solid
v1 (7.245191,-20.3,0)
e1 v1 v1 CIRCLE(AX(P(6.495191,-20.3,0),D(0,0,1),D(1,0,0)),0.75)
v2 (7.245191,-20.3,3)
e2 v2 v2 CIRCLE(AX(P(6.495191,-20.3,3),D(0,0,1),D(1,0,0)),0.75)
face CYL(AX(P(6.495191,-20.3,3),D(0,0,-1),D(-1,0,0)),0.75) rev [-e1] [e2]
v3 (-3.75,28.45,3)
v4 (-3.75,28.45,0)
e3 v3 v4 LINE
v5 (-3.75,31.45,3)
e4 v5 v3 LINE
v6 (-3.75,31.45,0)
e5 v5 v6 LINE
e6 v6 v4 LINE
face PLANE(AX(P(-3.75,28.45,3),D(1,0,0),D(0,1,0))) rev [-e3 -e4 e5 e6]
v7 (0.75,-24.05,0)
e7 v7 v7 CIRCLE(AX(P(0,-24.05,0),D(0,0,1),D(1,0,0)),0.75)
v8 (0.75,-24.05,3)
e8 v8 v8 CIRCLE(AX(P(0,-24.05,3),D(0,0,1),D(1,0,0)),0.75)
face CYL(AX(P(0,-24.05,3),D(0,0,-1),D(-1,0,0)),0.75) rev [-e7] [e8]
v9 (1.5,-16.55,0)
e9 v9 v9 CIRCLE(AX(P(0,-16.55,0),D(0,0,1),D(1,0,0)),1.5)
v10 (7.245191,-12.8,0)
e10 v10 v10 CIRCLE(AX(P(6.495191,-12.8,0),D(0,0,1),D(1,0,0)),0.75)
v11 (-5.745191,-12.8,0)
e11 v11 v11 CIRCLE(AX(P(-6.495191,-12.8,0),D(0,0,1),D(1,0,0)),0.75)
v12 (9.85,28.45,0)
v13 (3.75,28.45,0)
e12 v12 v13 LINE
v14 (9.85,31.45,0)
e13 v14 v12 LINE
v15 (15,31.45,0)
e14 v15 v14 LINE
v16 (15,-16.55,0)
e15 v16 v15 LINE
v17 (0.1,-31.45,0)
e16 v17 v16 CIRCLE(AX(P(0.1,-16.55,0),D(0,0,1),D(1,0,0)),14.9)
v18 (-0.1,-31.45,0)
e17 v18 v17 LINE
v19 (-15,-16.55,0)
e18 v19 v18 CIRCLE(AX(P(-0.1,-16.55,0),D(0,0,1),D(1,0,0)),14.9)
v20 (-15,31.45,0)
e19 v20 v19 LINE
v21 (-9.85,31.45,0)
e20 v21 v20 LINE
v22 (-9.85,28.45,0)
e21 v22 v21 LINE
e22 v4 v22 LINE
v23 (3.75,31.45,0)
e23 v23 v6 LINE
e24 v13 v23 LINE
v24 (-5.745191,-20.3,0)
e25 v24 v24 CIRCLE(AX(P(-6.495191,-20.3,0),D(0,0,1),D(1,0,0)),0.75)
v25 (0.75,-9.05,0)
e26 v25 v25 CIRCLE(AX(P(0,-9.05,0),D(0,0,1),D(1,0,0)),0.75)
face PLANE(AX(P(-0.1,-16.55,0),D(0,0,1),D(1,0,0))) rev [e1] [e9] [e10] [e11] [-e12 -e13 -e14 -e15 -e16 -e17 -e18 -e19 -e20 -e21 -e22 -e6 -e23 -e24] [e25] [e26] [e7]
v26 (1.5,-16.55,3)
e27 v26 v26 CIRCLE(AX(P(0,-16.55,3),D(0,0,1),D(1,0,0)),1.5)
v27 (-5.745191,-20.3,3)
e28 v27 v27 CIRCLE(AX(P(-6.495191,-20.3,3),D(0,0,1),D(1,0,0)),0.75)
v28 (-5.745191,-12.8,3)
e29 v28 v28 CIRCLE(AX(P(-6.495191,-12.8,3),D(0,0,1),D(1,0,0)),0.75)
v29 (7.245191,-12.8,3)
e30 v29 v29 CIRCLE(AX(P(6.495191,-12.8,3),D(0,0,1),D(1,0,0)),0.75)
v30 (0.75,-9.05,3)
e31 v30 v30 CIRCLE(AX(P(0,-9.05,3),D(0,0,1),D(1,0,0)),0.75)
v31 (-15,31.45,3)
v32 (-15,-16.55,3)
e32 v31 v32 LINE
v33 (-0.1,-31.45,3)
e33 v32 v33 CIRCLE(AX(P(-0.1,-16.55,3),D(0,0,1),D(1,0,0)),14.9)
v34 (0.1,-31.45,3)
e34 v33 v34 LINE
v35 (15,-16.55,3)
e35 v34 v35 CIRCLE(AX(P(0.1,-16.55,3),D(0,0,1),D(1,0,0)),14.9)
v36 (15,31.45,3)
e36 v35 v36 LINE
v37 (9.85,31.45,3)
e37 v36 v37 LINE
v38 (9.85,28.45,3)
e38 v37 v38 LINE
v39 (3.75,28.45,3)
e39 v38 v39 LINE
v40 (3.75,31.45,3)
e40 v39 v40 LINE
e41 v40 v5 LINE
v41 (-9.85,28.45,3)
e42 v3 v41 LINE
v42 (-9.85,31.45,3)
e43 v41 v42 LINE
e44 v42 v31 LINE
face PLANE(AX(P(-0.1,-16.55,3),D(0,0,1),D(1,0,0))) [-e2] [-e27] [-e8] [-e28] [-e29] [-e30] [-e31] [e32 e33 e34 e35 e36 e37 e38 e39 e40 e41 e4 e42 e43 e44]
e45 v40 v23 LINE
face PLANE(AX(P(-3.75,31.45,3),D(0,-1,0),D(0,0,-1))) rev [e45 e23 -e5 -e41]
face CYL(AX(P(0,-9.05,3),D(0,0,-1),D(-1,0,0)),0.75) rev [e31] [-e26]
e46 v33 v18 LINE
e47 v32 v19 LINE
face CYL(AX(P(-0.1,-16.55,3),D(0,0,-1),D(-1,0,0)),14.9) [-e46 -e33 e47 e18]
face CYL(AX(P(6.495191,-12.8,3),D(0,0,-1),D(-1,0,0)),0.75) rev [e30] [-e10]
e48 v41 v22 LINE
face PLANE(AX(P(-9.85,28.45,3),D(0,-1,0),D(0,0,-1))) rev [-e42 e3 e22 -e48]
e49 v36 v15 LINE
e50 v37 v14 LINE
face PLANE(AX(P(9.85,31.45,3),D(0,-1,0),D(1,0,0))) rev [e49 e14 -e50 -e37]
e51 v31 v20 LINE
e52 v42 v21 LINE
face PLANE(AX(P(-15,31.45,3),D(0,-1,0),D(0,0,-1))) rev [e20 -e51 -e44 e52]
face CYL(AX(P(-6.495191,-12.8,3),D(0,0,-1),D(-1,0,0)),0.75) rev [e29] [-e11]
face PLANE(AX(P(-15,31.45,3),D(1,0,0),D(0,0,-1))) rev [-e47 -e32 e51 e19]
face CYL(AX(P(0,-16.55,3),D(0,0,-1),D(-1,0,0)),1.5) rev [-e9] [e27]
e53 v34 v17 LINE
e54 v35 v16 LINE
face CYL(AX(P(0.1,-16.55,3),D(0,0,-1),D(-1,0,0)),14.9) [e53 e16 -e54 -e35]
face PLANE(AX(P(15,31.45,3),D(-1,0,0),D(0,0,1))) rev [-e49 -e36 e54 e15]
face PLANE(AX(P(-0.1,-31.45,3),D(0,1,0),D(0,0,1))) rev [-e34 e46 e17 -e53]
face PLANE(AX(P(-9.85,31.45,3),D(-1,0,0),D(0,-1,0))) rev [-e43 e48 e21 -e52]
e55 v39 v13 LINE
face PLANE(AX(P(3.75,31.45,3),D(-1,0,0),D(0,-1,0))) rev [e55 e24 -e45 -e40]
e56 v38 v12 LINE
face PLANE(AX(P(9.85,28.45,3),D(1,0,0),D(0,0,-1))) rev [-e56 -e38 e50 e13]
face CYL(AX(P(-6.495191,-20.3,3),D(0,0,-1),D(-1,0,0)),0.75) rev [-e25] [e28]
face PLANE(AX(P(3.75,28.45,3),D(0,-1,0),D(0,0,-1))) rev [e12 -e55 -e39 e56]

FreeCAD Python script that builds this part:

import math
import FreeCAD as App
import Part
import Sketcher

V = App.Vector
Q = App.Units.Quantity

doc = App.newDocument("Part")
params = doc.addObject("Spreadsheet::Sheet", "Params")
for row, (alias, value) in enumerate([
    ("sketch1_diameter", "3 mm"),
    ("sketch1_diameter2", "1.5 mm"),
    ("sketch1_radius", "14.9 mm"),
    ("sketch1_height", "3 mm"),
    ("sketch1_height2", "48 mm"),
    ("pad1_length", "3 mm"),
], start=1):
    params.set(f"A{row}", alias)
    params.set(f"B{row}", "=" + value)
    params.setAlias(f"B{row}", alias)

body = doc.addObject("PartDesign::Body", "Body")

sketch1 = body.newObject("Sketcher::SketchObject", "Sketch")
sketch1.AttachmentSupport = (doc.getObject("XY_Plane"), [""])
sketch1.MapMode = "FlatFace"
sketch1.addGeometry([
    Part.LineSegment(V(-9.85, 28.45, 0), V(-9.85, 31.45, 0)),
    Part.LineSegment(V(-9.85, 31.45, 0), V(-15, 31.45, 0)),
    Part.LineSegment(V(-15, 31.45, 0), V(-15, -16.55, 0)),
    Part.ArcOfCircle(Part.Circle(V(-0.1, -16.55, 0), V(0, 0, 1), 14.9), math.radians(180), math.radians(270)),
    Part.LineSegment(V(-0.1, -31.45, 0), V(0.1, -31.45, 0)),
    Part.ArcOfCircle(Part.Circle(V(0.1, -16.55, 0), V(0, 0, 1), 14.9), math.radians(-90), math.radians(0)),
    Part.LineSegment(V(15, -16.55, 0), V(15, 31.45, 0)),
    Part.LineSegment(V(15, 31.45, 0), V(9.85, 31.45, 0)),
    Part.LineSegment(V(9.85, 31.45, 0), V(9.85, 28.45, 0)),
    Part.LineSegment(V(9.85, 28.45, 0), V(3.75, 28.45, 0)),
    Part.LineSegment(V(3.75, 28.45, 0), V(3.75, 31.45, 0)),
    Part.LineSegment(V(3.75, 31.45, 0), V(-3.75, 31.45, 0)),
    Part.LineSegment(V(-3.75, 31.45, 0), V(-3.75, 28.45, 0)),
    Part.LineSegment(V(-3.75, 28.45, 0), V(-9.85, 28.45, 0)),
    Part.Circle(V(6.5, -20.3, 0), V(0, 0, 1), 0.75),
    Part.Circle(V(0, -24.05, 0), V(0, 0, 1), 0.75),
    Part.Circle(V(-6.5, -20.3, 0), V(0, 0, 1), 0.75),
    Part.Circle(V(6.5, -12.8, 0), V(0, 0, 1), 0.75),
    Part.Circle(V(0, -16.55, 0), V(0, 0, 1), 1.5),
    Part.Circle(V(-6.5, -12.8, 0), V(0, 0, 1), 0.75),
    Part.Circle(V(0, -9.05, 0), V(0, 0, 1), 0.75),
], False)
sketch1.addConstraint([
    Sketcher.Constraint("Coincident", 0, 2, 1, 1),
    Sketcher.Constraint("Coincident", 1, 2, 2, 1),
    Sketcher.Constraint("Tangent", 2, 2, 3, 1),
    Sketcher.Constraint("Tangent", 3, 2, 4, 1),
    Sketcher.Constraint("Tangent", 4, 2, 5, 1),
    Sketcher.Constraint("Tangent", 5, 2, 6, 1),
    Sketcher.Constraint("Coincident", 6, 2, 7, 1),
    Sketcher.Constraint("Coincident", 7, 2, 8, 1),
    Sketcher.Constraint("Coincident", 8, 2, 9, 1),
    Sketcher.Constraint("Coincident", 9, 2, 10, 1),
    Sketcher.Constraint("Coincident", 10, 2, 11, 1),
    Sketcher.Constraint("Coincident", 11, 2, 12, 1),
    Sketcher.Constraint("Coincident", 12, 2, 13, 1),
    Sketcher.Constraint("Coincident", 13, 2, 0, 1),
    Sketcher.Constraint("Vertical", 0),
    Sketcher.Constraint("Horizontal", 1),
    Sketcher.Constraint("Vertical", 2),
    Sketcher.Constraint("Horizontal", 4),
    Sketcher.Constraint("Vertical", 6),
    Sketcher.Constraint("Horizontal", 7),
    Sketcher.Constraint("Vertical", 8),
    Sketcher.Constraint("Horizontal", 9),
    Sketcher.Constraint("Vertical", 10),
    Sketcher.Constraint("Horizontal", 11),
    Sketcher.Constraint("Vertical", 12),
    Sketcher.Constraint("Horizontal", 13),
    Sketcher.Constraint("Equal", 3, 5),
    Sketcher.Constraint("Equal", 14, 15),
    Sketcher.Constraint("Equal", 15, 16),
    Sketcher.Constraint("Equal", 16, 17),
    Sketcher.Constraint("Equal", 17, 19),
    Sketcher.Constraint("Equal", 19, 20),
    Sketcher.Constraint("Symmetric", 14, 3, 16, 3, -2),
    Sketcher.Constraint("Symmetric", 17, 3, 19, 3, -2),
    Sketcher.Constraint("Symmetric", 1, 2, 6, 2, -2),
    Sketcher.Constraint("Symmetric", 9, 2, 12, 2, -2),
    Sketcher.Constraint("PointOnObject", 15, 3, -2),
    Sketcher.Constraint("PointOnObject", 18, 3, -2),
    Sketcher.Constraint("PointOnObject", 20, 3, -2),
    Sketcher.Constraint("Horizontal", 5, 3, 18, 3),
    Sketcher.Constraint("Horizontal", 7, 2, 10, 2),
    Sketcher.Constraint("Vertical", 14, 3, 17, 3),
    Sketcher.Constraint("Equal", 1, 7),
    Sketcher.Constraint("Diameter", 18, Q("3 mm")),
    Sketcher.Constraint("Diameter", 14, Q("1.5 mm")),
    Sketcher.Constraint("Radius", 3, Q("14.9 mm")),
    Sketcher.Constraint("DistanceY", 0, 1, 0, 2, Q("3 mm")),
    Sketcher.Constraint("DistanceY", 2, 2, 2, 1, Q("48 mm")),
    Sketcher.Constraint("DistanceX", 4, 1, 4, 2, Q("0.2 mm")),
    Sketcher.Constraint("DistanceX", 9, 2, 9, 1, Q("6.1 mm")),
    Sketcher.Constraint("DistanceX", 11, 2, 11, 1, Q("7.5 mm")),
    Sketcher.Constraint("DistanceY", 14, 3, -1, 1, Q("20.3 mm")),
    Sketcher.Constraint("DistanceY", 17, 3, -1, 1, Q("12.8 mm")),
    Sketcher.Constraint("DistanceY", 15, 3, 3, 3, Q("7.5 mm")),
    Sketcher.Constraint("DistanceY", 18, 3, 20, 3, Q("7.5 mm")),
    Sketcher.Constraint("DistanceY", 3, 3, -1, 1, Q("16.55 mm")),
    Sketcher.Constraint("DistanceX", -1, 1, 14, 3, Q("6.495191 mm")),
])
sketch1.setExpression("Constraints[43]", "Params.sketch1_diameter")
sketch1.setExpression("Constraints[44]", "Params.sketch1_diameter2")
sketch1.setExpression("Constraints[45]", "Params.sketch1_radius")
sketch1.setExpression("Constraints[46]", "Params.sketch1_height")
sketch1.setExpression("Constraints[47]", "Params.sketch1_height2")
pad1 = body.newObject("PartDesign::Pad", "Pad")
pad1.Profile = sketch1
pad1.setExpression("Length", "Params.pad1_length")

doc.recompute()
